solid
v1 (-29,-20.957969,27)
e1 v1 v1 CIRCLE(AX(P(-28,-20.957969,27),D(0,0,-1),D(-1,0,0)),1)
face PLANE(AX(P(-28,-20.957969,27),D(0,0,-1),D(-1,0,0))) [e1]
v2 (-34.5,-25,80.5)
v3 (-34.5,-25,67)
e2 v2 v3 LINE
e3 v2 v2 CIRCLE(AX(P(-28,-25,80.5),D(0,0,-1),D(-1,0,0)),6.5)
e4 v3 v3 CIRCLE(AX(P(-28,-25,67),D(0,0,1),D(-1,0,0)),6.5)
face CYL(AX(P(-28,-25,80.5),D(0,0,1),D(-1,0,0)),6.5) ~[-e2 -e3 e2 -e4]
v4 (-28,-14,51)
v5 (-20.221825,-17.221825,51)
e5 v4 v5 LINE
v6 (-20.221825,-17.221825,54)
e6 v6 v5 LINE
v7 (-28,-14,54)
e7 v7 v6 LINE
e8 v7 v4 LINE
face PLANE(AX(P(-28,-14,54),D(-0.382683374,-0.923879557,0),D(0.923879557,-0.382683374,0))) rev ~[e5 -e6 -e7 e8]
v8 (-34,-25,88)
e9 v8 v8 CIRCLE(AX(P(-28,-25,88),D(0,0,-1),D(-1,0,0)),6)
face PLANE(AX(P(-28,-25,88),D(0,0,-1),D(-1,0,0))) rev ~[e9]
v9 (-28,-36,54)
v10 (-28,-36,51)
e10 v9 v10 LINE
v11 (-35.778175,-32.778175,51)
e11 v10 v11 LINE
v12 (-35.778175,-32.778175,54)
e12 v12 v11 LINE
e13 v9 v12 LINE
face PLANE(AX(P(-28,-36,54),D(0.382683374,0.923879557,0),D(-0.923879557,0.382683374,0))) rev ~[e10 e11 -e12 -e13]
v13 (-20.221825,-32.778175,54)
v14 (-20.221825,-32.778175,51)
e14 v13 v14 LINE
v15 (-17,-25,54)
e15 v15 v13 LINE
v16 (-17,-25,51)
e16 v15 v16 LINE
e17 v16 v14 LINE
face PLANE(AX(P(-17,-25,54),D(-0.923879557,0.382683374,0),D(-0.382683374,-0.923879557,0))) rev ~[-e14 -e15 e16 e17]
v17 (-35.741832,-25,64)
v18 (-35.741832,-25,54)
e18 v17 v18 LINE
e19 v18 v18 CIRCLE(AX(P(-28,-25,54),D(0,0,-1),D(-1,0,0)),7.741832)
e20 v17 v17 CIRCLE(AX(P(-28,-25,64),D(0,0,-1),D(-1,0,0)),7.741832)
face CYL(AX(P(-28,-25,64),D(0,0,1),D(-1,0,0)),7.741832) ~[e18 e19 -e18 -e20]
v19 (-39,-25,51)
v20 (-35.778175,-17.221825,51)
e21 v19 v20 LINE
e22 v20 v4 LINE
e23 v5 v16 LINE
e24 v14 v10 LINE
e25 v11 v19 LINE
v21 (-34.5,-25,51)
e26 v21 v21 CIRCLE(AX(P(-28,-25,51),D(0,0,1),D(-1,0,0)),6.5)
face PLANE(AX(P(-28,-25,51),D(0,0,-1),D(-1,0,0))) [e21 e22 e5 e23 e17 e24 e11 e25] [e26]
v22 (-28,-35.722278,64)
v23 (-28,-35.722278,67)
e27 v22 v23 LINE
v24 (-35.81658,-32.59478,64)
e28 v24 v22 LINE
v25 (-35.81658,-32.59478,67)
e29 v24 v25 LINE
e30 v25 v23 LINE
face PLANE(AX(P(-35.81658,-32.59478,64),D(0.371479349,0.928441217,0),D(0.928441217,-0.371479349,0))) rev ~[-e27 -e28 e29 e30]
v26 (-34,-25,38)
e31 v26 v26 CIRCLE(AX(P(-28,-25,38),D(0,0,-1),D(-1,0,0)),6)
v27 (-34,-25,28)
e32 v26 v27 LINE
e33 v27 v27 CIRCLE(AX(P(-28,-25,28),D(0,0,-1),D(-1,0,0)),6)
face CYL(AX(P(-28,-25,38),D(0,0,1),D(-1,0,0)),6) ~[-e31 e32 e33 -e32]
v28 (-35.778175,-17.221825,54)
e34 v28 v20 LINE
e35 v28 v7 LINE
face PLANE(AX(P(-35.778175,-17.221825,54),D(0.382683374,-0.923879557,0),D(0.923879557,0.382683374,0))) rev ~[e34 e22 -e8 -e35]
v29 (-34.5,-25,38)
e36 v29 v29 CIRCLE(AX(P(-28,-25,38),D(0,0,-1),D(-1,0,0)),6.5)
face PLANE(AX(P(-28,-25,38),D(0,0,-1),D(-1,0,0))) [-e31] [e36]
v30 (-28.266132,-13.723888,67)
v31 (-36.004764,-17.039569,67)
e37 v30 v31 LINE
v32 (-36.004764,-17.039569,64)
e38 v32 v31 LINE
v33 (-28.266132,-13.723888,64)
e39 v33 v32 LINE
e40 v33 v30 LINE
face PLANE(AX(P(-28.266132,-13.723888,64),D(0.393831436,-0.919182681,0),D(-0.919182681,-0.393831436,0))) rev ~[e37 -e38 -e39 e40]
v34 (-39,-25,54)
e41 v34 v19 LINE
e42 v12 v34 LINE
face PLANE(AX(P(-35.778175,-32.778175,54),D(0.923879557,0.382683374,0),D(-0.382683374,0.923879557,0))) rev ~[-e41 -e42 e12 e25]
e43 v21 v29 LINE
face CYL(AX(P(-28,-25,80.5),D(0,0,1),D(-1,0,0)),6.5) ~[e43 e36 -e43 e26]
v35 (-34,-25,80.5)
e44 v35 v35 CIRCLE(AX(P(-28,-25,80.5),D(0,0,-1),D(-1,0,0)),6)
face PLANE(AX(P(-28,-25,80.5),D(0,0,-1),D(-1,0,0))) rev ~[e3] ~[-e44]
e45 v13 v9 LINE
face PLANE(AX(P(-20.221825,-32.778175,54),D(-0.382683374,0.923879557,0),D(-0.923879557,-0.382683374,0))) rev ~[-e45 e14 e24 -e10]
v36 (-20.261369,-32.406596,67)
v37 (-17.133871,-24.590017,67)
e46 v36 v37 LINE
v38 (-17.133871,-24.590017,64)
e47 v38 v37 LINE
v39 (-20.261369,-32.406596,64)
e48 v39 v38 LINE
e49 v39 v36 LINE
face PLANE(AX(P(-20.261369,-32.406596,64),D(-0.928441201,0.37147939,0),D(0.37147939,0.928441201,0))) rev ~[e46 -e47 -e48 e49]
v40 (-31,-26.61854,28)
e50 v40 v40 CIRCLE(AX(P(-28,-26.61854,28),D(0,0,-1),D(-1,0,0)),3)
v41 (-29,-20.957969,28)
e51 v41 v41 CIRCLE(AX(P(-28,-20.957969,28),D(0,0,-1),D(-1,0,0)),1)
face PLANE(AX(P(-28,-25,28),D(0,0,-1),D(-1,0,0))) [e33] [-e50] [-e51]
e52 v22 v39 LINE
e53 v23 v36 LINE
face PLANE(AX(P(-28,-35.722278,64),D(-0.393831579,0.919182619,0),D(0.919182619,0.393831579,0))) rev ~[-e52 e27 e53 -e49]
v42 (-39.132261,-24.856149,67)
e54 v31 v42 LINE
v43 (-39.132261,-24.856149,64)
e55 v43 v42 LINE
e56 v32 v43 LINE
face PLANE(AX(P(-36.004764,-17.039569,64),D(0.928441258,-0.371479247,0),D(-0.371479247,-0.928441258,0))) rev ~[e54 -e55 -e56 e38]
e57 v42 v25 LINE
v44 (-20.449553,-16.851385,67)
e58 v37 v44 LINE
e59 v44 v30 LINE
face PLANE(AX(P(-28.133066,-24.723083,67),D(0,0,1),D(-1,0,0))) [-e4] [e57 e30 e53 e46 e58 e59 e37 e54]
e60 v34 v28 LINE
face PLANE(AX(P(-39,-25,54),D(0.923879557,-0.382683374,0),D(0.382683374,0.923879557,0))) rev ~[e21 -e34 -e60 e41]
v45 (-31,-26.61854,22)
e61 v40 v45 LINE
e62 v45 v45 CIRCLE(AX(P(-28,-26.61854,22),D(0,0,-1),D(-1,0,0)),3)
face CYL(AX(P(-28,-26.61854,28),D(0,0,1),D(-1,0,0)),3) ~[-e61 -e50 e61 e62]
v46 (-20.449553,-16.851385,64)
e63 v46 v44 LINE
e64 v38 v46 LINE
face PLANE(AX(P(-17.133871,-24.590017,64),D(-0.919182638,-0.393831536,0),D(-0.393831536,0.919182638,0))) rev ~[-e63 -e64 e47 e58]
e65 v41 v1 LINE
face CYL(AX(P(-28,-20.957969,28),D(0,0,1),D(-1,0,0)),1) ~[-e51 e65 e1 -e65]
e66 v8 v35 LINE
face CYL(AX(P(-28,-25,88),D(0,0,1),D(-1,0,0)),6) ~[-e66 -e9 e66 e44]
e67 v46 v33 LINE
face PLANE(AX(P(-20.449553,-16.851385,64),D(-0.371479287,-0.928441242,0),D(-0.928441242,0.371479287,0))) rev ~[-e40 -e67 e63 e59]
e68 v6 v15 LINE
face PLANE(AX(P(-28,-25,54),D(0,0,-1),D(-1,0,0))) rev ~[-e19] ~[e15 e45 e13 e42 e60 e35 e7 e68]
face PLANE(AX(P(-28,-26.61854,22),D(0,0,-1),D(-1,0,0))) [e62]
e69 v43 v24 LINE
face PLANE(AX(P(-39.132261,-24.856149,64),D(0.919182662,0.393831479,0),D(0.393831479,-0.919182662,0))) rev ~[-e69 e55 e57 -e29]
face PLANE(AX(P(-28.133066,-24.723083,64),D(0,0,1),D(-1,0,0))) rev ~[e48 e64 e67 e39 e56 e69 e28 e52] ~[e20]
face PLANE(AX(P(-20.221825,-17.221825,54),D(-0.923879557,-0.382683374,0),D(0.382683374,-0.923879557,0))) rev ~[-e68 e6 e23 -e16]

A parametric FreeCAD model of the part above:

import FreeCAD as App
import Part
import Sketcher
Q = App.Units.Quantity

doc = App.newDocument("Part")
body = doc.addObject("PartDesign::Body", "Body")

sketch1 = body.newObject("Sketcher::SketchObject", "Sketch")
sketch1.AttachmentSupport = (doc.getObject("XY_Plane"), [""])
sketch1.MapMode = "FlatFace"
sketch1.addGeometry(Part.Circle(App.Vector(0, 0, 0), App.Vector(0, 0, 1), 6), False)
sketch1.addConstraint([
    Sketcher.Constraint("Coincident", 0, 3, -1, 1),
    Sketcher.Constraint("Diameter", 0, Q("12 mm")),
])
pad1 = body.newObject("PartDesign::Pad", "Pad")
pad1.Profile = sketch1
pad1.Length = 7.5

sketch2 = body.newObject("Sketcher::SketchObject", "Sketch001")
sketch2.AttachmentSupport = (doc.getObject("XY_Plane"), [""])
sketch2.MapMode = "FlatFace"
sketch2.AttachmentOffset = App.Placement(App.Vector(0, 0, 7.5), App.Rotation())
sketch2.addGeometry(Part.Circle(App.Vector(0, 0, 0), App.Vector(0, 0, 1), 6), False)
sketch2.addConstraint([
    Sketcher.Constraint("Coincident", 0, 3, -1, 1),
    Sketcher.Constraint("Diameter", 0, Q("13 mm")),
])
pad2 = body.newObject("PartDesign::Pad", "Pad001")
pad2.Profile = sketch2
pad2.Length = 42.5

sketch3 = body.newObject("Sketcher::SketchObject", "Sketch002")
sketch3.AttachmentSupport = (doc.getObject("XY_Plane"), [""])
sketch3.MapMode = "FlatFace"
sketch3.AttachmentOffset = App.Placement(App.Vector(0, 0, 50), App.Rotation())
sketch3.addGeometry(Part.Circle(App.Vector(0, 0, 0), App.Vector(0, 0, 1), 6), False)
sketch3.addConstraint([
    Sketcher.Constraint("Coincident", 0, 3, -1, 1),
    Sketcher.Constraint("Diameter", 0, Q("12 mm")),
])
pad3 = body.newObject("PartDesign::Pad", "Pad002")
pad3.Profile = sketch3
pad3.Length = 10

sketch4 = body.newObject("Sketcher::SketchObject", "Sketch003")
sketch4.AttachmentSupport = (doc.getObject("XY_Plane"), [""])
sketch4.MapMode = "FlatFace"
sketch4.AttachmentOffset = App.Placement(App.Vector(0, 0, 60), App.Rotation())
sketch4.addGeometry(Part.Circle(App.Vector(0, -1.6, 0), App.Vector(0, 0, 1), 3), False)
sketch4.addConstraint([
    Sketcher.Constraint("PointOnObject", 0, 3, -2),
    Sketcher.Constraint("Diameter", 0, Q("6 mm")),
    Sketcher.Constraint("DistanceY", 0, 3, -1, 1, Q("1.61854 mm")),
])
pad4 = body.newObject("PartDesign::Pad", "Pad003")
pad4.Profile = sketch4
pad4.Length = 6

sketch5 = body.newObject("Sketcher::SketchObject", "Sketch004")
sketch5.AttachmentSupport = (doc.getObject("XY_Plane"), [""])
sketch5.MapMode = "FlatFace"
sketch5.AttachmentOffset = App.Placement(App.Vector(0, 0, 60), App.Rotation())
sketch5.addGeometry(Part.Circle(App.Vector(0, 4, 0), App.Vector(0, 0, 1), 1), False)
sketch5.addConstraint([
    Sketcher.Constraint("PointOnObject", 0, 3, -2),
    Sketcher.Constraint("Diameter", 0, Q("2 mm")),
    Sketcher.Constraint("DistanceY", -1, 1, 0, 3, Q("4.042031 mm")),
])
pad5 = body.newObject("PartDesign::Pad", "Pad004")
pad5.Profile = sketch5
pad5.Length = 1

sketch6 = body.newObject("Sketcher::SketchObject", "Sketch005")
sketch6.AttachmentSupport = (doc.getObject("XY_Plane"), [""])
sketch6.MapMode = "FlatFace"
sketch6.AttachmentOffset = App.Placement(App.Vector(0, 0, 24), App.Rotation())
sketch6.addGeometry([
    Part.LineSegment(App.Vector(0, -11, 0), App.Vector(-8, -7, 0)),
    Part.LineSegment(App.Vector(-8, -7, 0), App.Vector(-11, 0, 0)),
    Part.LineSegment(App.Vector(-11, 0, 0), App.Vector(-8, 8, 0)),
    Part.LineSegment(App.Vector(-8, 8, 0), App.Vector(0, 11, 0)),
    Part.LineSegment(App.Vector(0, 11, 0), App.Vector(8, 8, 0)),
    Part.LineSegment(App.Vector(8, 8, 0), App.Vector(11, 0, 0)),
    Part.LineSegment(App.Vector(11, 0, 0), App.Vector(8, -8, 0)),
    Part.LineSegment(App.Vector(8, -8, 0), App.Vector(0, -11, 0)),
], False)
sketch6.addConstraint([
    Sketcher.Constraint("Coincident", 0, 2, 1, 1),
    Sketcher.Constraint("Coincident", 1, 2, 2, 1),
    Sketcher.Constraint("Coincident", 2, 2, 3, 1),
    Sketcher.Constraint("Coincident", 3, 2, 4, 1),
    Sketcher.Constraint("Coincident", 4, 2, 5, 1),
    Sketcher.Constraint("Coincident", 5, 2, 6, 1),
    Sketcher.Constraint("Coincident", 6, 2, 7, 1),
    Sketcher.Constraint("Coincident", 7, 2, 0, 1),
    Sketcher.Constraint("PointOnObject", 7, 2, -2),
    Sketcher.Constraint("Perpendicular", 0, 2),
    Sketcher.Constraint("Perpendicular", 1, 3),
    Sketcher.Constraint("Perpendicular", 2, 4),
    Sketcher.Constraint("Perpendicular", 3, 5),
    Sketcher.Constraint("Perpendicular", 4, 6),
    Sketcher.Constraint("Perpendicular", 5, 7),
    Sketcher.Constraint("Equal", 0, 1),
    Sketcher.Constraint("Equal", 1, 2),
    Sketcher.Constraint("Equal", 2, 3),
    Sketcher.Constraint("Equal", 3, 4),
    Sketcher.Constraint("Equal", 4, 5),
    Sketcher.Constraint("DistanceX", 1, 2, 0, 2, Q("3.127498 mm")),
    Sketcher.Constraint("DistanceX", 0, 2, -1, 1, Q("7.738631 mm")),
    Sketcher.Constraint("DistanceY", -1, 1, 4, 2, Q("7.960431 mm")),
    Sketcher.Constraint("DistanceX", -1, 1, 5, 2, Q("11.132261 mm")),
])
pad6 = body.newObject("PartDesign::Pad", "Pad005")
pad6.Profile = sketch6
pad6.Length = 3
pad6.Reversed = True

sketch7 = body.newObject("Sketcher::SketchObject", "Sketch006")
sketch7.AttachmentSupport = (doc.getObject("XY_Plane"), [""])
sketch7.MapMode = "FlatFace"
sketch7.AttachmentOffset = App.Placement(App.Vector(0, 0, 24), App.Rotation())
sketch7.addGeometry(Part.Circle(App.Vector(0, 0, 0), App.Vector(0, 0, 1), 8), False)
sketch7.addConstraint([
    Sketcher.Constraint("Coincident", 0, 3, -1, 1),
    Sketcher.Constraint("Diameter", 0, Q("15.483664 mm")),
])
pad7 = body.newObject("PartDesign::Pad", "Pad006")
pad7.Profile = sketch7
pad7.Length = 10

sketch8 = body.newObject("Sketcher::SketchObject", "Sketch007")
sketch8.AttachmentSupport = (doc.getObject("XY_Plane"), [""])
sketch8.MapMode = "FlatFace"
sketch8.AttachmentOffset = App.Placement(App.Vector(0, 0, 34), App.Rotation())
sketch8.addGeometry([
    Part.LineSegment(App.Vector(0, 11, 0), App.Vector(-8, 8, 0)),
    Part.LineSegment(App.Vector(-8, 8, 0), App.Vector(-11, 0, 0)),
    Part.LineSegment(App.Vector(-11, 0, 0), App.Vector(-8, -8, 0)),
    Part.LineSegment(App.Vector(-8, -8, 0), App.Vector(0, -11, 0)),
    Part.LineSegment(App.Vector(0, -11, 0), App.Vector(8, -8, 0)),
    Part.LineSegment(App.Vector(8, -8, 0), App.Vector(11, 0, 0)),
    Part.LineSegment(App.Vector(11, 0, 0), App.Vector(8, 8, 0)),
    Part.LineSegment(App.Vector(8, 8, 0), App.Vector(0, 11, 0)),
], False)
sketch8.addConstraint([
    Sketcher.Constraint("Coincident", 0, 2, 1, 1),
    Sketcher.Constraint("Coincident", 1, 2, 2, 1),
    Sketcher.Constraint("Coincident", 2, 2, 3, 1),
    Sketcher.Constraint("Coincident", 3, 2, 4, 1),
    Sketcher.Constraint("Coincident", 4, 2, 5, 1),
    Sketcher.Constraint("Coincident", 5, 2, 6, 1),
    Sketcher.Constraint("Coincident", 6, 2, 7, 1),
    Sketcher.Constraint("Coincident", 7, 2, 0, 1),
    Sketcher.Constraint("Symmetric", 0, 2, 4, 2, -1, 1),
    Sketcher.Constraint("Symmetric", 1, 2, 5, 2, -1, 1),
    Sketcher.Constraint("Symmetric", 2, 2, 6, 2, -1, 1),
    Sketcher.Constraint("Symmetric", 3, 2, 7, 2, -1, 1),
    Sketcher.Constraint("Symmetric", 2, 2, 4, 2, -2),
    Sketcher.Constraint("PointOnObject", 1, 2, -1),
    Sketcher.Constraint("PointOnObject", 3, 2, -2),
    Sketcher.Constraint("Perpendicular", 0, 2),
    Sketcher.Constraint("Equal", 0, 1),
    Sketcher.Constraint("DistanceX", 1, 2, -1, 1, Q("11 mm")),
    Sketcher.Constraint("Angle", 0, Q("-157.500004 deg")),
])
pad8 = body.newObject("PartDesign::Pad", "Pad007")
pad8.Profile = sketch8
pad8.Length = 3
body2 = doc.addObject("PartDesign::Body", "Body001")
doc.recompute()

body.Placement = App.Placement(App.Vector(-28, -25, 88), App.Rotation(App.Vector(0, 1, 0), 180))
boolean = body2.newObject("PartDesign::Boolean", "Boolean")
boolean.Type = "Fuse"
boolean.addObjects([body])

doc.recompute()
